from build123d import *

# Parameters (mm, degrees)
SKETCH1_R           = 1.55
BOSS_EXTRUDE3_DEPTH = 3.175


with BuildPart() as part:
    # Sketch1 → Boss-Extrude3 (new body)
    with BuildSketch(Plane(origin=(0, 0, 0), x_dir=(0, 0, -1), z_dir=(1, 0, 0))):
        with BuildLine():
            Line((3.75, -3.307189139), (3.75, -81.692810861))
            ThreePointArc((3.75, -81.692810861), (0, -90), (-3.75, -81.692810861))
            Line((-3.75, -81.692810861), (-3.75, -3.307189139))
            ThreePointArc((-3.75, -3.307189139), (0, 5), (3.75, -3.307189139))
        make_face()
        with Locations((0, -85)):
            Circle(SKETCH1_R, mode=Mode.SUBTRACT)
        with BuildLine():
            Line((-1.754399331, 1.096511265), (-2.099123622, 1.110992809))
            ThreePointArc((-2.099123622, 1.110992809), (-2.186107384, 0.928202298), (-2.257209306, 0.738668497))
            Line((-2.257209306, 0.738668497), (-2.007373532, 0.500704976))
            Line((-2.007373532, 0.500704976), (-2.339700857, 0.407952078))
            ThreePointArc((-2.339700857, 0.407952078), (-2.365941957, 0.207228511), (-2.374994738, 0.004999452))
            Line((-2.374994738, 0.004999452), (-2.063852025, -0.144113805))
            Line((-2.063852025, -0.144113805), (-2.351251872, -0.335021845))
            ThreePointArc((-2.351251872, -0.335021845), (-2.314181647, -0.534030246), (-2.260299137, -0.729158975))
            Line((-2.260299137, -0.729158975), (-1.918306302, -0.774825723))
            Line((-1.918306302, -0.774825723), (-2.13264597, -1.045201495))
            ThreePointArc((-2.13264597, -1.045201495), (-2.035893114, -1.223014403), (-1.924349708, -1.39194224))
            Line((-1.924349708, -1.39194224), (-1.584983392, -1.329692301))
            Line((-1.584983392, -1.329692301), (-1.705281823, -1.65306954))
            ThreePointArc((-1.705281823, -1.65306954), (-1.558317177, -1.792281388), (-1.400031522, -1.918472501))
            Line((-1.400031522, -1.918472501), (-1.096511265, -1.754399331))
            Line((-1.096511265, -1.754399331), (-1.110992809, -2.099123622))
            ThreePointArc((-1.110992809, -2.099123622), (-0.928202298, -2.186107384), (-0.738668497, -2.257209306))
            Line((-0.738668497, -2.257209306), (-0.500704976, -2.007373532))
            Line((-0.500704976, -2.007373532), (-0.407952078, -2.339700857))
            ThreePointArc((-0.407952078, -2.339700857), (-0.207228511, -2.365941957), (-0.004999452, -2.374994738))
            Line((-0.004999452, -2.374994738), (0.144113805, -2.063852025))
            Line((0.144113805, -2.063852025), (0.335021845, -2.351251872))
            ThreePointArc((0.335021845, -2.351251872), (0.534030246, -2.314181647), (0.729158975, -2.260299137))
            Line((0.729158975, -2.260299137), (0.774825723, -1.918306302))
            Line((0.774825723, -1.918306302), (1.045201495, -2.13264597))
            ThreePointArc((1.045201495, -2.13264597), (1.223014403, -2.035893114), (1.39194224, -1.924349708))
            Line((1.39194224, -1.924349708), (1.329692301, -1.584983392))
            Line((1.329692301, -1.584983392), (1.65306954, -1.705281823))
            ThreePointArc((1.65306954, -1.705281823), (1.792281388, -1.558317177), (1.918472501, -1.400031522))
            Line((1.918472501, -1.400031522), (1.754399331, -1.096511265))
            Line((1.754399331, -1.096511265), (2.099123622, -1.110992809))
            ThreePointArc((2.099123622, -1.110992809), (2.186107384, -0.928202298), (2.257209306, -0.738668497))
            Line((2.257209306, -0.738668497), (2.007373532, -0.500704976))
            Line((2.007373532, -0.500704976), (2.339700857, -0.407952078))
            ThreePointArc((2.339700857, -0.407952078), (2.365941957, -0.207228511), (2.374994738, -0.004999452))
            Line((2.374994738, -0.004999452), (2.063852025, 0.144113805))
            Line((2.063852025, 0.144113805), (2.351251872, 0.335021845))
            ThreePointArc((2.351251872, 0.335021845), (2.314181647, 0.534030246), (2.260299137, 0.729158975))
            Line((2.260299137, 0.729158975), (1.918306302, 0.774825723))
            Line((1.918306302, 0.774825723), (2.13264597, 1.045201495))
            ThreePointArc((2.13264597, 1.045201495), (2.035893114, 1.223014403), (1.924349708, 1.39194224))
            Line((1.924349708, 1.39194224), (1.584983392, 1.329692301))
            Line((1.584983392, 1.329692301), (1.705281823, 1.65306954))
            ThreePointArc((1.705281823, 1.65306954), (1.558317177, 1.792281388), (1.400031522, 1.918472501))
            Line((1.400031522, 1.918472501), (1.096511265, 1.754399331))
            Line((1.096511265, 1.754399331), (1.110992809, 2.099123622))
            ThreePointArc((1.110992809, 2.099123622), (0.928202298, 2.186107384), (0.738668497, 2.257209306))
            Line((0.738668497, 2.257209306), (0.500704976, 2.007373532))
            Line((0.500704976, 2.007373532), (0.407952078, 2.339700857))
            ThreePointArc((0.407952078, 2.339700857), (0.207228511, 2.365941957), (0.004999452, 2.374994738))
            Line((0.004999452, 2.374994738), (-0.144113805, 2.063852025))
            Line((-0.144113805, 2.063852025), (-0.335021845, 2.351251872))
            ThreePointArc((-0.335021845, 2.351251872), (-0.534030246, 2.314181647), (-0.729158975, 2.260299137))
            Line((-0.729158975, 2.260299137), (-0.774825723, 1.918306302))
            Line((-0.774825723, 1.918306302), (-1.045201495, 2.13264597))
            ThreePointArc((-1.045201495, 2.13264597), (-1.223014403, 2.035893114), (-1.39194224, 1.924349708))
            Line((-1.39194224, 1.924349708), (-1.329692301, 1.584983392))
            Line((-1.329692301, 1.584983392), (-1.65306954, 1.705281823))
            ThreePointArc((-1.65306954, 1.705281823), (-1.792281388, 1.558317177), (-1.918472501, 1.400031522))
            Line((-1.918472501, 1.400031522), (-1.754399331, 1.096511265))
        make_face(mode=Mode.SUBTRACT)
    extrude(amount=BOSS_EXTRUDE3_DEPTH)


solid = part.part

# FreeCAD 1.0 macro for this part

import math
import FreeCAD as App
import Part
import Sketcher
from FreeCAD import Vector
Q = App.Units.Quantity

doc = App.newDocument("Part")
body = doc.addObject("PartDesign::Body", "Body")

sketch1 = body.newObject("Sketcher::SketchObject", "Sketch")
sketch1.AttachmentSupport = (doc.getObject("YZ_Plane"), [""])
sketch1.MapMode = "FlatFace"
sketch1.addGeometry(Part.LineSegment(Vector(-81.69, -3.75, 0), Vector(-3.31, -3.75, 0)), False)
sketch1.addGeometry(Part.ArcOfCircle(Part.Circle(Vector(0, 0, 0), Vector(0, 0, 1), 5), math.radians(-131), math.radians(131)), False)
sketch1.addGeometry(Part.LineSegment(Vector(-3.31, 3.75, 0), Vector(-81.69, 3.75, 0)), False)
sketch1.addGeometry(Part.ArcOfCircle(Part.Circle(Vector(-85, 0, 0), Vector(0, 0, 1), 5), math.radians(49), math.radians(311)), False)
sketch1.addGeometry(Part.Circle(Vector(-85, 0, 0), Vector(0, 0, 1), 1.55), False)
sketch1.addGeometry(Part.LineSegment(Vector(1.1, 1.75, 0), Vector(1.4, 1.92, 0)), False)
sketch1.addGeometry(Part.ArcOfCircle(Part.Circle(Vector(0, 0, 0), Vector(0, 0, 1), 2.38), math.radians(44.11), math.radians(53.88)), False)
sketch1.addGeometry(Part.LineSegment(Vector(1.71, 1.65, 0), Vector(1.58, 1.33, 0)), False)
sketch1.addGeometry(Part.LineSegment(Vector(1.58, 1.33, 0), Vector(1.92, 1.39, 0)), False)
sketch1.addGeometry(Part.ArcOfCircle(Part.Circle(Vector(0, 0, 0), Vector(0, 0, 1), 2.37), math.radians(26.11), math.radians(35.88)), False)
sketch1.addGeometry(Part.LineSegment(Vector(2.13, 1.05, 0), Vector(1.92, 0.77, 0)), False)
sketch1.addGeometry(Part.LineSegment(Vector(1.92, 0.77, 0), Vector(2.26, 0.73, 0)), False)
sketch1.addGeometry(Part.ArcOfCircle(Part.Circle(Vector(0, 0, 0), Vector(0, 0, 1), 2.38), math.radians(8.11), math.radians(17.88)), False)
sketch1.addGeometry(Part.LineSegment(Vector(2.35, 0.34, 0), Vector(2.06, 0.14, 0)), False)
sketch1.addGeometry(Part.LineSegment(Vector(2.06, 0.14, 0), Vector(2.37, 0, 0)), False)
sketch1.addGeometry(Part.ArcOfCircle(Part.Circle(Vector(0, 0, 0), Vector(0, 0, 1), 2.37), math.radians(-9.89), math.radians(-0.12)), False)
sketch1.addGeometry(Part.LineSegment(Vector(2.34, -0.41, 0), Vector(2.01, -0.5, 0)), False)
sketch1.addGeometry(Part.LineSegment(Vector(2.01, -0.5, 0), Vector(2.26, -0.74, 0)), False)
sketch1.addGeometry(Part.ArcOfCircle(Part.Circle(Vector(0, 0, 0), Vector(0, 0, 1), 2.38), math.radians(-27.89), math.radians(-18.12)), False)
sketch1.addGeometry(Part.LineSegment(Vector(2.1, -1.11, 0), Vector(1.75, -1.1, 0)), False)
sketch1.addGeometry(Part.LineSegment(Vector(1.75, -1.1, 0), Vector(1.92, -1.4, 0)), False)
sketch1.addGeometry(Part.ArcOfCircle(Part.Circle(Vector(0, 0, 0), Vector(0, 0, 1), 2.38), math.radians(-45.89), math.radians(-36.12)), False)
sketch1.addGeometry(Part.LineSegment(Vector(1.65, -1.71, 0), Vector(1.33, -1.58, 0)), False)
sketch1.addGeometry(Part.LineSegment(Vector(1.33, -1.58, 0), Vector(1.39, -1.92, 0)), False)
sketch1.addGeometry(Part.ArcOfCircle(Part.Circle(Vector(0, 0, 0), Vector(0, 0, 1), 2.37), math.radians(-63.89), math.radians(-54.12)), False)
sketch1.addGeometry(Part.LineSegment(Vector(1.05, -2.13, 0), Vector(0.77, -1.92, 0)), False)
sketch1.addGeometry(Part.LineSegment(Vector(0.77, -1.92, 0), Vector(0.73, -2.26, 0)), False)
sketch1.addGeometry(Part.ArcOfCircle(Part.Circle(Vector(0, 0, 0), Vector(0, 0, 1), 2.38), math.radians(-81.89), math.radians(-72.12)), False)
sketch1.addGeometry(Part.LineSegment(Vector(0.34, -2.35, 0), Vector(0.14, -2.06, 0)), False)
sketch1.addGeometry(Part.LineSegment(Vector(0.14, -2.06, 0), Vector(0, -2.37, 0)), False)
sketch1.addGeometry(Part.ArcOfCircle(Part.Circle(Vector(0, 0, 0), Vector(0, 0, 1), 2.37), math.radians(-99.89), math.radians(-90.12)), False)
sketch1.addGeometry(Part.LineSegment(Vector(-0.41, -2.34, 0), Vector(-0.5, -2.01, 0)), False)
sketch1.addGeometry(Part.LineSegment(Vector(-0.5, -2.01, 0), Vector(-0.74, -2.26, 0)), False)
sketch1.addGeometry(Part.ArcOfCircle(Part.Circle(Vector(0, 0, 0), Vector(0, 0, 1), 2.38), math.radians(-117.89), math.radians(-108.12)), False)
sketch1.addGeometry(Part.LineSegment(Vector(-1.11, -2.1, 0), Vector(-1.1, -1.75, 0)), False)
sketch1.addGeometry(Part.LineSegment(Vector(-1.1, -1.75, 0), Vector(-1.4, -1.92, 0)), False)
sketch1.addGeometry(Part.ArcOfCircle(Part.Circle(Vector(0, 0, 0), Vector(0, 0, 1), 2.38), math.radians(-135.89), math.radians(-126.12)), False)
sketch1.addGeometry(Part.LineSegment(Vector(-1.71, -1.65, 0), Vector(-1.58, -1.33, 0)), False)
sketch1.addGeometry(Part.LineSegment(Vector(-1.58, -1.33, 0), Vector(-1.92, -1.39, 0)), False)
sketch1.addGeometry(Part.ArcOfCircle(Part.Circle(Vector(0, 0, 0), Vector(0, 0, 1), 2.37), math.radians(-153.89), math.radians(-144.12)), False)
sketch1.addGeometry(Part.LineSegment(Vector(-2.13, -1.05, 0), Vector(-1.92, -0.77, 0)), False)
sketch1.addGeometry(Part.LineSegment(Vector(-1.92, -0.77, 0), Vector(-2.26, -0.73, 0)), False)
sketch1.addGeometry(Part.ArcOfCircle(Part.Circle(Vector(0, 0, 0), Vector(0, 0, 1), 2.38), math.radians(-171.89), math.radians(-162.12)), False)
sketch1.addGeometry(Part.LineSegment(Vector(-2.35, -0.34, 0), Vector(-2.06, -0.14, 0)), False)
sketch1.addGeometry(Part.LineSegment(Vector(-2.06, -0.14, 0), Vector(-2.37, 0, 0)), False)
sketch1.addGeometry(Part.ArcOfCircle(Part.Circle(Vector(0, 0, 0), Vector(0, 0, 1), 2.37), math.radians(170.11), math.radians(179.88)), False)
sketch1.addGeometry(Part.LineSegment(Vector(-2.34, 0.41, 0), Vector(-2.01, 0.5, 0)), False)
sketch1.addGeometry(Part.LineSegment(Vector(-2.01, 0.5, 0), Vector(-2.26, 0.74, 0)), False)
sketch1.addGeometry(Part.ArcOfCircle(Part.Circle(Vector(0, 0, 0), Vector(0, 0, 1), 2.38), math.radians(152.11), math.radians(161.88)), False)
sketch1.addGeometry(Part.LineSegment(Vector(-2.1, 1.11, 0), Vector(-1.75, 1.1, 0)), False)
sketch1.addGeometry(Part.LineSegment(Vector(-1.75, 1.1, 0), Vector(-1.92, 1.4, 0)), False)
sketch1.addGeometry(Part.ArcOfCircle(Part.Circle(Vector(0, 0, 0), Vector(0, 0, 1), 2.38), math.radians(134.11), math.radians(143.88)), False)
sketch1.addGeometry(Part.LineSegment(Vector(-1.65, 1.71, 0), Vector(-1.33, 1.58, 0)), False)
sketch1.addGeometry(Part.LineSegment(Vector(-1.33, 1.58, 0), Vector(-1.39, 1.92, 0)), False)
sketch1.addGeometry(Part.ArcOfCircle(Part.Circle(Vector(0, 0, 0), Vector(0, 0, 1), 2.37), math.radians(116.11), math.radians(125.88)), False)
sketch1.addGeometry(Part.LineSegment(Vector(-1.05, 2.13, 0), Vector(-0.77, 1.92, 0)), False)
sketch1.addGeometry(Part.LineSegment(Vector(-0.77, 1.92, 0), Vector(-0.73, 2.26, 0)), False)
sketch1.addGeometry(Part.ArcOfCircle(Part.Circle(Vector(0, 0, 0), Vector(0, 0, 1), 2.38), math.radians(98.11), math.radians(107.88)), False)
sketch1.addGeometry(Part.LineSegment(Vector(-0.34, 2.35, 0), Vector(-0.14, 2.06, 0)), False)
sketch1.addGeometry(Part.LineSegment(Vector(-0.14, 2.06, 0), Vector(0, 2.37, 0)), False)
sketch1.addGeometry(Part.ArcOfCircle(Part.Circle(Vector(0, 0, 0), Vector(0, 0, 1), 2.37), math.radians(80.11), math.radians(89.88)), False)
sketch1.addGeometry(Part.LineSegment(Vector(0.41, 2.34, 0), Vector(0.5, 2.01, 0)), False)
sketch1.addGeometry(Part.LineSegment(Vector(0.5, 2.01, 0), Vector(0.74, 2.26, 0)), False)
sketch1.addGeometry(Part.ArcOfCircle(Part.Circle(Vector(0, 0, 0), Vector(0, 0, 1), 2.38), math.radians(62.11), math.radians(71.88)), False)
sketch1.addGeometry(Part.LineSegment(Vector(1.11, 2.1, 0), Vector(1.1, 1.75, 0)), False)
sketch1.addConstraint(Sketcher.Constraint("Coincident", 0, 2, 1, 1))
sketch1.addConstraint(Sketcher.Constraint("Coincident", 1, 2, 2, 1))
sketch1.addConstraint(Sketcher.Constraint("Coincident", 2, 2, 3, 1))
sketch1.addConstraint(Sketcher.Constraint("Coincident", 3, 2, 0, 1))
sketch1.addConstraint(Sketcher.Constraint("Coincident", 5, 2, 6, 2))
sketch1.addConstraint(Sketcher.Constraint("Coincident", 6, 1, 7, 1))
sketch1.addConstraint(Sketcher.Constraint("Coincident", 7, 2, 8, 1))
sketch1.addConstraint(Sketcher.Constraint("Coincident", 8, 2, 9, 2))
sketch1.addConstraint(Sketcher.Constraint("Coincident", 9, 1, 10, 1))
sketch1.addConstraint(Sketcher.Constraint("Coincident", 10, 2, 11, 1))
sketch1.addConstraint(Sketcher.Constraint("Coincident", 11, 2, 12, 2))
sketch1.addConstraint(Sketcher.Constraint("Coincident", 12, 1, 13, 1))
sketch1.addConstraint(Sketcher.Constraint("Coincident", 13, 2, 14, 1))
sketch1.addConstraint(Sketcher.Constraint("Coincident", 14, 2, 15, 2))
sketch1.addConstraint(Sketcher.Constraint("Coincident", 15, 1, 16, 1))
sketch1.addConstraint(Sketcher.Constraint("Coincident", 16, 2, 17, 1))
sketch1.addConstraint(Sketcher.Constraint("Coincident", 17, 2, 18, 2))
sketch1.addConstraint(Sketcher.Constraint("Coincident", 18, 1, 19, 1))
sketch1.addConstraint(Sketcher.Constraint("Coincident", 19, 2, 20, 1))
sketch1.addConstraint(Sketcher.Constraint("Coincident", 20, 2, 21, 2))
sketch1.addConstraint(Sketcher.Constraint("Coincident", 21, 1, 22, 1))
sketch1.addConstraint(Sketcher.Constraint("Coincident", 22, 2, 23, 1))
sketch1.addConstraint(Sketcher.Constraint("Coincident", 23, 2, 24, 2))
sketch1.addConstraint(Sketcher.Constraint("Coincident", 24, 1, 25, 1))
sketch1.addConstraint(Sketcher.Constraint("Coincident", 25, 2, 26, 1))
sketch1.addConstraint(Sketcher.Constraint("Coincident", 26, 2, 27, 2))
sketch1.addConstraint(Sketcher.Constraint("Coincident", 27, 1, 28, 1))
sketch1.addConstraint(Sketcher.Constraint("Coincident", 28, 2, 29, 1))
sketch1.addConstraint(Sketcher.Constraint("Coincident", 29, 2, 30, 2))
sketch1.addConstraint(Sketcher.Constraint("Coincident", 30, 1, 31, 1))
sketch1.addConstraint(Sketcher.Constraint("Coincident", 31, 2, 32, 1))
sketch1.addConstraint(Sketcher.Constraint("Coincident", 32, 2, 33, 2))
sketch1.addConstraint(Sketcher.Constraint("Coincident", 33, 1, 34, 1))
sketch1.addConstraint(Sketcher.Constraint("Coincident", 34, 2, 35, 1))
sketch1.addConstraint(Sketcher.Constraint("Coincident", 35, 2, 36, 2))
sketch1.addConstraint(Sketcher.Constraint("Coincident", 36, 1, 37, 1))
sketch1.addConstraint(Sketcher.Constraint("Coincident", 37, 2, 38, 1))
sketch1.addConstraint(Sketcher.Constraint("Coincident", 38, 2, 39, 2))
sketch1.addConstraint(Sketcher.Constraint("Coincident", 39, 1, 40, 1))
sketch1.addConstraint(Sketcher.Constraint("Coincident", 40, 2, 41, 1))
sketch1.addConstraint(Sketcher.Constraint("Coincident", 41, 2, 42, 2))
sketch1.addConstraint(Sketcher.Constraint("Coincident", 42, 1, 43, 1))
sketch1.addConstraint(Sketcher.Constraint("Coincident", 43, 2, 44, 1))
sketch1.addConstraint(Sketcher.Constraint("Coincident", 44, 2, 45, 2))
sketch1.addConstraint(Sketcher.Constraint("Coincident", 45, 1, 46, 1))
sketch1.addConstraint(Sketcher.Constraint("Coincident", 46, 2, 47, 1))
sketch1.addConstraint(Sketcher.Constraint("Coincident", 47, 2, 48, 2))
sketch1.addConstraint(Sketcher.Constraint("Coincident", 48, 1, 49, 1))
sketch1.addConstraint(Sketcher.Constraint("Coincident", 49, 2, 50, 1))
sketch1.addConstraint(Sketcher.Constraint("Coincident", 50, 2, 51, 2))
sketch1.addConstraint(Sketcher.Constraint("Coincident", 51, 1, 52, 1))
sketch1.addConstraint(Sketcher.Constraint("Coincident", 52, 2, 53, 1))
sketch1.addConstraint(Sketcher.Constraint("Coincident", 53, 2, 54, 2))
sketch1.addConstraint(Sketcher.Constraint("Coincident", 54, 1, 55, 1))
sketch1.addConstraint(Sketcher.Constraint("Coincident", 55, 2, 56, 1))
sketch1.addConstraint(Sketcher.Constraint("Coincident", 56, 2, 57, 2))
sketch1.addConstraint(Sketcher.Constraint("Coincident", 57, 1, 58, 1))
sketch1.addConstraint(Sketcher.Constraint("Coincident", 58, 2, 59, 1))
sketch1.addConstraint(Sketcher.Constraint("Coincident", 59, 2, 60, 2))
sketch1.addConstraint(Sketcher.Constraint("Coincident", 60, 1, 61, 1))
sketch1.addConstraint(Sketcher.Constraint("Coincident", 61, 2, 62, 1))
sketch1.addConstraint(Sketcher.Constraint("Coincident", 62, 2, 63, 2))
sketch1.addConstraint(Sketcher.Constraint("Coincident", 63, 1, 64, 1))
sketch1.addConstraint(Sketcher.Constraint("Coincident", 64, 2, 5, 1))
sketch1.addConstraint(Sketcher.Constraint("Horizontal", 0))
sketch1.addConstraint(Sketcher.Constraint("Horizontal", 2))
sketch1.addConstraint(Sketcher.Constraint("Coincident", 1, 3, -1, 1))
sketch1.addConstraint(Sketcher.Constraint("Coincident", 6, 3, -1, 1))
sketch1.addConstraint(Sketcher.Constraint("Coincident", 9, 3, -1, 1))
sketch1.addConstraint(Sketcher.Constraint("Coincident", 12, 3, -1, 1))
sketch1.addConstraint(Sketcher.Constraint("Coincident", 15, 3, -1, 1))
sketch1.addConstraint(Sketcher.Constraint("Coincident", 18, 3, -1, 1))
sketch1.addConstraint(Sketcher.Constraint("Coincident", 21, 3, -1, 1))
sketch1.addConstraint(Sketcher.Constraint("Coincident", 24, 3, -1, 1))
sketch1.addConstraint(Sketcher.Constraint("Coincident", 27, 3, -1, 1))
sketch1.addConstraint(Sketcher.Constraint("Coincident", 30, 3, -1, 1))
sketch1.addConstraint(Sketcher.Constraint("Coincident", 33, 3, -1, 1))
sketch1.addConstraint(Sketcher.Constraint("Coincident", 36, 3, -1, 1))
sketch1.addConstraint(Sketcher.Constraint("Coincident", 39, 3, -1, 1))
sketch1.addConstraint(Sketcher.Constraint("Coincident", 42, 3, -1, 1))
sketch1.addConstraint(Sketcher.Constraint("Coincident", 45, 3, -1, 1))
sketch1.addConstraint(Sketcher.Constraint("Coincident", 48, 3, -1, 1))
sketch1.addConstraint(Sketcher.Constraint("Coincident", 51, 3, -1, 1))
sketch1.addConstraint(Sketcher.Constraint("Coincident", 54, 3, -1, 1))
sketch1.addConstraint(Sketcher.Constraint("Coincident", 57, 3, -1, 1))
sketch1.addConstraint(Sketcher.Constraint("Coincident", 60, 3, -1, 1))
sketch1.addConstraint(Sketcher.Constraint("Coincident", 63, 3, -1, 1))
sketch1.addConstraint(Sketcher.Constraint("Coincident", 4, 3, 3, 3))
sketch1.addConstraint(Sketcher.Constraint("Equal", 1, 3))
sketch1.addConstraint(Sketcher.Constraint("Equal", 6, 9))
sketch1.addConstraint(Sketcher.Constraint("Equal", 9, 12))
sketch1.addConstraint(Sketcher.Constraint("Equal", 12, 15))
sketch1.addConstraint(Sketcher.Constraint("Equal", 15, 18))
sketch1.addConstraint(Sketcher.Constraint("Equal", 18, 21))
sketch1.addConstraint(Sketcher.Constraint("Equal", 21, 24))
sketch1.addConstraint(Sketcher.Constraint("Equal", 24, 27))
sketch1.addConstraint(Sketcher.Constraint("Equal", 27, 30))
sketch1.addConstraint(Sketcher.Constraint("Equal", 30, 33))
sketch1.addConstraint(Sketcher.Constraint("Equal", 33, 36))
sketch1.addConstraint(Sketcher.Constraint("Equal", 36, 39))
sketch1.addConstraint(Sketcher.Constraint("Equal", 39, 42))
sketch1.addConstraint(Sketcher.Constraint("Equal", 42, 45))
sketch1.addConstraint(Sketcher.Constraint("Equal", 45, 48))
sketch1.addConstraint(Sketcher.Constraint("Equal", 48, 51))
sketch1.addConstraint(Sketcher.Constraint("Equal", 51, 54))
sketch1.addConstraint(Sketcher.Constraint("Equal", 54, 57))
sketch1.addConstraint(Sketcher.Constraint("Equal", 57, 60))
sketch1.addConstraint(Sketcher.Constraint("Equal", 60, 63))
sketch1.addConstraint(Sketcher.Constraint("Symmetric", 7, 2, 37, 2, -1, 1))
sketch1.addConstraint(Sketcher.Constraint("Symmetric", 10, 2, 40, 2, -1, 1))
sketch1.addConstraint(Sketcher.Constraint("Symmetric", 13, 2, 43, 2, -1, 1))
sketch1.addConstraint(Sketcher.Constraint("Symmetric", 16, 2, 46, 2, -1, 1))
sketch1.addConstraint(Sketcher.Constraint("Symmetric", 19, 2, 49, 2, -1, 1))
sketch1.addConstraint(Sketcher.Constraint("Symmetric", 22, 2, 52, 2, -1, 1))
sketch1.addConstraint(Sketcher.Constraint("Symmetric", 25, 2, 55, 2, -1, 1))
sketch1.addConstraint(Sketcher.Constraint("Symmetric", 28, 2, 58, 2, -1, 1))
sketch1.addConstraint(Sketcher.Constraint("Symmetric", 31, 2, 61, 2, -1, 1))
sketch1.addConstraint(Sketcher.Constraint("Symmetric", 34, 2, 64, 2, -1, 1))
sketch1.addConstraint(Sketcher.Constraint("Symmetric", 2, 2, 3, 2, -1))
sketch1.addConstraint(Sketcher.Constraint("Perpendicular", 5, 20))
sketch1.addConstraint(Sketcher.Constraint("Perpendicular", 7, 22))
sketch1.addConstraint(Sketcher.Constraint("Perpendicular", 8, 23))
sketch1.addConstraint(Sketcher.Constraint("Perpendicular", 10, 25))
sketch1.addConstraint(Sketcher.Constraint("Perpendicular", 11, 26))
sketch1.addConstraint(Sketcher.Constraint("Perpendicular", 13, 28))
sketch1.addConstraint(Sketcher.Constraint("Perpendicular", 14, 29))
sketch1.addConstraint(Sketcher.Constraint("Perpendicular", 16, 31))
sketch1.addConstraint(Sketcher.Constraint("Perpendicular", 17, 32))
sketch1.addConstraint(Sketcher.Constraint("Perpendicular", 19, 34))
sketch1.addConstraint(Sketcher.Constraint("Perpendicular", 20, 35))
sketch1.addConstraint(Sketcher.Constraint("Perpendicular", 22, 37))
sketch1.addConstraint(Sketcher.Constraint("Perpendicular", 23, 38))
sketch1.addConstraint(Sketcher.Constraint("Perpendicular", 25, 40))
sketch1.addConstraint(Sketcher.Constraint("Perpendicular", 26, 41))
sketch1.addConstraint(Sketcher.Constraint("Perpendicular", 28, 43))
sketch1.addConstraint(Sketcher.Constraint("Perpendicular", 29, 44))
sketch1.addConstraint(Sketcher.Constraint("Perpendicular", 31, 46))
sketch1.addConstraint(Sketcher.Constraint("Perpendicular", 32, 47))
sketch1.addConstraint(Sketcher.Constraint("Perpendicular", 34, 49))
sketch1.addConstraint(Sketcher.Constraint("Perpendicular", 35, 50))
sketch1.addConstraint(Sketcher.Constraint("Perpendicular", 37, 52))
sketch1.addConstraint(Sketcher.Constraint("Perpendicular", 38, 53))
sketch1.addConstraint(Sketcher.Constraint("Perpendicular", 40, 55))
sketch1.addConstraint(Sketcher.Constraint("Perpendicular", 41, 56))
sketch1.addConstraint(Sketcher.Constraint("Perpendicular", 43, 58))
sketch1.addConstraint(Sketcher.Constraint("Perpendicular", 44, 59))
sketch1.addConstraint(Sketcher.Constraint("Perpendicular", 46, 61))
sketch1.addConstraint(Sketcher.Constraint("Perpendicular", 47, 62))
sketch1.addConstraint(Sketcher.Constraint("Perpendicular", 49, 64))
sketch1.addConstraint(Sketcher.Constraint("Equal", 5, 7))
sketch1.addConstraint(Sketcher.Constraint("Equal", 7, 8))
sketch1.addConstraint(Sketcher.Constraint("Equal", 8, 10))
sketch1.addConstraint(Sketcher.Constraint("Equal", 10, 11))
sketch1.addConstraint(Sketcher.Constraint("Equal", 11, 13))
sketch1.addConstraint(Sketcher.Constraint("Equal", 13, 14))
sketch1.addConstraint(Sketcher.Constraint("Equal", 14, 16))
sketch1.addConstraint(Sketcher.Constraint("Equal", 16, 17))
sketch1.addConstraint(Sketcher.Constraint("Equal", 17, 19))
sketch1.addConstraint(Sketcher.Constraint("Equal", 19, 20))
sketch1.addConstraint(Sketcher.Constraint("Equal", 20, 22))
sketch1.addConstraint(Sketcher.Constraint("Equal", 22, 23))
sketch1.addConstraint(Sketcher.Constraint("Equal", 23, 25))
sketch1.addConstraint(Sketcher.Constraint("Equal", 25, 26))
sketch1.addConstraint(Sketcher.Constraint("Equal", 26, 28))
sketch1.addConstraint(Sketcher.Constraint("Equal", 28, 29))
sketch1.addConstraint(Sketcher.Constraint("Equal", 29, 31))
sketch1.addConstraint(Sketcher.Constraint("Equal", 31, 32))
sketch1.addConstraint(Sketcher.Constraint("Equal", 32, 34))
sketch1.addConstraint(Sketcher.Constraint("Radius", 1, Q("5 mm")))
sketch1.addConstraint(Sketcher.Constraint("Diameter", 4, Q("3.1 mm")))
sketch1.addConstraint(Sketcher.Constraint("DistanceX", 3, 3, -1, 1, Q("85 mm")))
sketch1.addConstraint(Sketcher.Constraint("Radius", 6, Q("2.375 mm")))
sketch1.addConstraint(Sketcher.Constraint("DistanceY", 0, 2, -1, 1, Q("3.75 mm")))
sketch1.addConstraint(Sketcher.Constraint("DistanceY", 14, 2, -1, 1, Q("0.004999 mm")))
sketch1.addConstraint(Sketcher.Constraint("DistanceY", -1, 1, 9, 1, Q("1.045201 mm")))
sketch1.addConstraint(Sketcher.Constraint("DistanceX", -1, 1, 11, 2, Q("2.260299 mm")))
sketch1.addConstraint(Sketcher.Constraint("DistanceX", -1, 1, 15, 1, Q("2.339701 mm")))
sketch1.addConstraint(Sketcher.Constraint("DistanceX", -1, 1, 19, 2, Q("1.754399 mm")))
sketch1.addConstraint(Sketcher.Constraint("Distance", 5, Q("0.345028 mm")))
sketch1.addConstraint(Sketcher.Constraint("DistanceX", -1, 1, 5, 2, Q("1.400032 mm")))
sketch1.addConstraint(Sketcher.Constraint("DistanceX", -1, 1, 6, 1, Q("1.705282 mm")))
sketch1.addConstraint(Sketcher.Constraint("DistanceX", -1, 1, 8, 2, Q("1.92435 mm")))
sketch1.addConstraint(Sketcher.Constraint("DistanceX", -1, 1, 12, 1, Q("2.351252 mm")))
sketch1.addConstraint(Sketcher.Constraint("DistanceX", -1, 1, 17, 2, Q("2.257209 mm")))
pad1 = body.newObject("PartDesign::Pad", "Pad")
pad1.Profile = sketch1
pad1.Length = 3.175

doc.recompute()
